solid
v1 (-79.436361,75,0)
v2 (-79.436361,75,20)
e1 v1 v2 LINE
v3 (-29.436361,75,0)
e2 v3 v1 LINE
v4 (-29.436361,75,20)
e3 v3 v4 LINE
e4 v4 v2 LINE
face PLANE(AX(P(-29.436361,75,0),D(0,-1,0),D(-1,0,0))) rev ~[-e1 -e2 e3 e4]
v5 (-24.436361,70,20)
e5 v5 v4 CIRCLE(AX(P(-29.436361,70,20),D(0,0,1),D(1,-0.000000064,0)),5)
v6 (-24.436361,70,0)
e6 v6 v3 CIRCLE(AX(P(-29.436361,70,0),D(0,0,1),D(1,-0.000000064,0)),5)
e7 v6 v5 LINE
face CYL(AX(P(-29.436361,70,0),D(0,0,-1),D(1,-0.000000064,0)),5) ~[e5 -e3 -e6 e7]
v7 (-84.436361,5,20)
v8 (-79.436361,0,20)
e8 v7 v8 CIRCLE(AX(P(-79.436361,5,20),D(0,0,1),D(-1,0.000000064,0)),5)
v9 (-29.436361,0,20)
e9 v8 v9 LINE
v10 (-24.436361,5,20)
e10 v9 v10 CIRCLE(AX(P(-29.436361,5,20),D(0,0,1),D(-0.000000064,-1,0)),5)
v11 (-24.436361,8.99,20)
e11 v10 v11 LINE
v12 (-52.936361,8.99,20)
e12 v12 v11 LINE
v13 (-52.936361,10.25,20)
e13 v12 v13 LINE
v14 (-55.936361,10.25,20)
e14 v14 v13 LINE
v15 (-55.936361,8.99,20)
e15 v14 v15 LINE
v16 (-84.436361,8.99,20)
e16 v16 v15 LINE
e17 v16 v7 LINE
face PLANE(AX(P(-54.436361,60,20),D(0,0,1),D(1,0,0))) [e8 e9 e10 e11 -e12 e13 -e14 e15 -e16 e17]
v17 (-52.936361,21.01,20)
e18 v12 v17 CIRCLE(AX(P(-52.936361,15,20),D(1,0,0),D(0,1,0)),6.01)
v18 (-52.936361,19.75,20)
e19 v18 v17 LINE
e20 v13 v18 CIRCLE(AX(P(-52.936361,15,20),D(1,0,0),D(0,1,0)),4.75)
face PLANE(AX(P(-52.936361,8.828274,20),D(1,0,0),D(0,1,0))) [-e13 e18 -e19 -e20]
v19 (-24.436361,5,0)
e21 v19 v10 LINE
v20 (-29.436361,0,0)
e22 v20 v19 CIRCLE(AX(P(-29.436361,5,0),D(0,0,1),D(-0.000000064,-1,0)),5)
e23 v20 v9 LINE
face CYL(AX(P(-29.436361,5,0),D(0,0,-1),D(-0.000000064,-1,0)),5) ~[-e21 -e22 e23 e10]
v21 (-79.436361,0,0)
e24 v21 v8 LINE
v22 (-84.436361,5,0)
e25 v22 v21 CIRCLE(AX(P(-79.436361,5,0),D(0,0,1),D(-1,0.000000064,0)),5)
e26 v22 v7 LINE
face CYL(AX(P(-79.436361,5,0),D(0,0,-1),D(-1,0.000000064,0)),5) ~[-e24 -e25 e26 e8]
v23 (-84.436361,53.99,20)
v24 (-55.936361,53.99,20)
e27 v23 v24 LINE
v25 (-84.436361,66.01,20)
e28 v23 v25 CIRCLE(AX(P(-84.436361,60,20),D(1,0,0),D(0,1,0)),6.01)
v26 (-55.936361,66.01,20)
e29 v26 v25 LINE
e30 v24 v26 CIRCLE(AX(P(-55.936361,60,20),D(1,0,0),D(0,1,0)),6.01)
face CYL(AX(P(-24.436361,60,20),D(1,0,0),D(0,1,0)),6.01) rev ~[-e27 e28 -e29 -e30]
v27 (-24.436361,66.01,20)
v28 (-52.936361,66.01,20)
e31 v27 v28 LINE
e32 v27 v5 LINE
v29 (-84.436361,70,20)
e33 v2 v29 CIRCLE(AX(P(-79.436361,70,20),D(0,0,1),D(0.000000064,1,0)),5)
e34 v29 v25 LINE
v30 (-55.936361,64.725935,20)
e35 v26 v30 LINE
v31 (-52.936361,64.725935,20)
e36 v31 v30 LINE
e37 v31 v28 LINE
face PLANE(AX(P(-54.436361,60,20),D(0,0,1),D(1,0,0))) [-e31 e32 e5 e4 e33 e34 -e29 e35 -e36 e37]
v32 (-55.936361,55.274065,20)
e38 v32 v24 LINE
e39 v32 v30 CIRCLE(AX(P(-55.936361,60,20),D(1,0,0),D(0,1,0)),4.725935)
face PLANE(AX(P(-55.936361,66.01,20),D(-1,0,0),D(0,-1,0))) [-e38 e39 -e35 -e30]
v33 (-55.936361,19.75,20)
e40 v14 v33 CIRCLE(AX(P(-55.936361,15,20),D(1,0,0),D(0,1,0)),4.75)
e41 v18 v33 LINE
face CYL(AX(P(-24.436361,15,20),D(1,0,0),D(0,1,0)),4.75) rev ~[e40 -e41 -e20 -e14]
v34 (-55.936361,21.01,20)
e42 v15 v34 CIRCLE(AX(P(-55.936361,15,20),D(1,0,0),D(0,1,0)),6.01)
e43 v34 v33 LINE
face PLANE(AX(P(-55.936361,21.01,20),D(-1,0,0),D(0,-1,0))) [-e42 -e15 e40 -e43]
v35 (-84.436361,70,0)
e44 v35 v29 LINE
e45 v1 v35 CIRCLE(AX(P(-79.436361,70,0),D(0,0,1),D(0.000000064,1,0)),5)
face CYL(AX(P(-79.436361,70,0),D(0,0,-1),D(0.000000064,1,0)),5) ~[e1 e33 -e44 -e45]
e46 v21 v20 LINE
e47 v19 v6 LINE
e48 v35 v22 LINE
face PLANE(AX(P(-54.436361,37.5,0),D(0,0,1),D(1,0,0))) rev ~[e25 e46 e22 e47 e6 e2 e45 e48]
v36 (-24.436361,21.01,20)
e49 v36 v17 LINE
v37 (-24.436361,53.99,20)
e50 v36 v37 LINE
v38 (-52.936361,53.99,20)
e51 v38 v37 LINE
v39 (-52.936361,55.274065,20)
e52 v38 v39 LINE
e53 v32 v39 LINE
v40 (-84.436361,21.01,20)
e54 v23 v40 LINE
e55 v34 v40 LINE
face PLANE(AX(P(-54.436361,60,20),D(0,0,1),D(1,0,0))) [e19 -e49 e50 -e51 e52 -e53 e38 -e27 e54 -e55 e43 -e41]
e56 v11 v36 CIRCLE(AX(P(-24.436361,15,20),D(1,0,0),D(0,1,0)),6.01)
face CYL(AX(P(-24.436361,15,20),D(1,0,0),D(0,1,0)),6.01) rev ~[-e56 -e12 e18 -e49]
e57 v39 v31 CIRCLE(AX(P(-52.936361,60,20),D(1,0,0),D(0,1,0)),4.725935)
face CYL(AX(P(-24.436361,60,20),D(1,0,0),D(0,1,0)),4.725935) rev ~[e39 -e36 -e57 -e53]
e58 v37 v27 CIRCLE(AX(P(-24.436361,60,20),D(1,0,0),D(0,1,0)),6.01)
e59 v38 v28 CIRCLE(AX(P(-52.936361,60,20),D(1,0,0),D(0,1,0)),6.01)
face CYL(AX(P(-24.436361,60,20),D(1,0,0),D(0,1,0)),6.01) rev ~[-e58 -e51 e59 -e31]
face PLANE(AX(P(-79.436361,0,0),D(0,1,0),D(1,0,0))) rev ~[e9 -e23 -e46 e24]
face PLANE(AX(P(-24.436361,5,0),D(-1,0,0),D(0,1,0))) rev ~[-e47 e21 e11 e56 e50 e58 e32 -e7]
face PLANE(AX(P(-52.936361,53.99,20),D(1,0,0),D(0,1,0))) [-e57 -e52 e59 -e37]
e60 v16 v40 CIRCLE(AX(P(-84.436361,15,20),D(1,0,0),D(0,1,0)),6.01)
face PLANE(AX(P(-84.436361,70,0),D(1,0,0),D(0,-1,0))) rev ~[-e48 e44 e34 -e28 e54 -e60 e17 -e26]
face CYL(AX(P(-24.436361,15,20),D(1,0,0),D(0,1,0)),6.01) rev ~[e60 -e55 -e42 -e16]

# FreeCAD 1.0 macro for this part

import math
import FreeCAD as App
import Part
import Sketcher

V = App.Vector


def add_polygon(sketch, points):
    """Adds a closed chain of lines whose ends are joined by coincident constraints."""
    first, n = sketch.GeometryCount, len(points)
    for a, b in zip(points, points[1:] + points[:1]):
        sketch.addGeometry(Part.LineSegment(App.Vector(*a, 0), App.Vector(*b, 0)), False)
    for i in range(n):
        sketch.addConstraint(Sketcher.Constraint("Coincident", first + i, 2, first + (i + 1) % n, 1))

doc = App.newDocument("Part")
body = doc.addObject("PartDesign::Body", "Body")

# Sketch on XY plane
sketch1 = body.newObject("Sketcher::SketchObject", "Sketch")
sketch1.AttachmentSupport = (doc.getObject("XY_Plane"), [""])
sketch1.MapMode = "FlatFace"
sketch1.addGeometry(Part.LineSegment(V(-29.4, 75, 0), V(-79.4, 75, 0)), False)
sketch1.addGeometry(Part.ArcOfCircle(Part.Circle(V(-79.4, 70, 0), V(0, 0, 1), 5), math.radians(90), math.radians(180)), False)
sketch1.addGeometry(Part.LineSegment(V(-84.4, 70, 0), V(-84.4, 5, 0)), False)
sketch1.addGeometry(Part.ArcOfCircle(Part.Circle(V(-79.4, 5, 0), V(0, 0, 1), 5), math.radians(180), math.radians(270)), False)
sketch1.addGeometry(Part.LineSegment(V(-79.4, 0, 0), V(-29.4, 0, 0)), False)
sketch1.addGeometry(Part.ArcOfCircle(Part.Circle(V(-29.4, 5, 0), V(0, 0, 1), 5), math.radians(-90), math.radians(0)), False)
sketch1.addGeometry(Part.LineSegment(V(-24.4, 5, 0), V(-24.4, 70, 0)), False)
sketch1.addGeometry(Part.ArcOfCircle(Part.Circle(V(-29.4, 70, 0), V(0, 0, 1), 5), math.radians(0), math.radians(90)), False)
sketch1.addConstraint(Sketcher.Constraint("Tangent", 0, 2, 1, 1))
sketch1.addConstraint(Sketcher.Constraint("Tangent", 1, 2, 2, 1))
sketch1.addConstraint(Sketcher.Constraint("Tangent", 2, 2, 3, 1))
sketch1.addConstraint(Sketcher.Constraint("Tangent", 3, 2, 4, 1))
sketch1.addConstraint(Sketcher.Constraint("Tangent", 4, 2, 5, 1))
sketch1.addConstraint(Sketcher.Constraint("Tangent", 5, 2, 6, 1))
sketch1.addConstraint(Sketcher.Constraint("Tangent", 6, 2, 7, 1))
sketch1.addConstraint(Sketcher.Constraint("Tangent", 7, 2, 0, 1))
sketch1.addConstraint(Sketcher.Constraint("Horizontal", 0))
sketch1.addConstraint(Sketcher.Constraint("Vertical", 2))
sketch1.addConstraint(Sketcher.Constraint("Horizontal", 4))
sketch1.addConstraint(Sketcher.Constraint("Vertical", 6))
sketch1.addConstraint(Sketcher.Constraint("Equal", 1, 3))
sketch1.addConstraint(Sketcher.Constraint("Equal", 3, 5))
sketch1.addConstraint(Sketcher.Constraint("Equal", 5, 7))
sketch1.addConstraint(Sketcher.Constraint("PointOnObject", 3, 2, -1))
sketch1.addConstraint(Sketcher.Constraint("Radius", 1, 5.0))
sketch1.addConstraint(Sketcher.Constraint("DistanceX", 0, 2, 0, 1, 50.0))
sketch1.addConstraint(Sketcher.Constraint("DistanceY", 2, 2, 2, 1, 65.0))
sketch1.addConstraint(Sketcher.Constraint("DistanceX", 1, 3, -1, 1, 79.436361))
pad1 = body.newObject("PartDesign::Pad", "Pad")
pad1.Profile = sketch1
pad1.Length = 20

# Sketch on YZ plane
sketch2 = body.newObject("Sketcher::SketchObject", "Sketch001")
sketch2.AttachmentSupport = (doc.getObject("YZ_Plane"), [""])
sketch2.MapMode = "FlatFace"
sketch2.AttachmentOffset = App.Placement(V(0, 0, -24.436361), App.Rotation())
sketch2.addGeometry(Part.Circle(V(60, 20, 0), V(0, 0, 1), 6), False)
sketch2.addGeometry(Part.Circle(V(15, 20, 0), V(0, 0, 1), 6), False)
sketch2.addConstraint(Sketcher.Constraint("Equal", 0, 1))
sketch2.addConstraint(Sketcher.Constraint("Horizontal", 0, 3, 1, 3))
sketch2.addConstraint(Sketcher.Constraint("Diameter", 0, 12.02))
sketch2.addConstraint(Sketcher.Constraint("DistanceX", -1, 1, 0, 3, 60.0))
sketch2.addConstraint(Sketcher.Constraint("DistanceY", -1, 1, 0, 3, 20.0))
sketch2.addConstraint(Sketcher.Constraint("DistanceX", -1, 1, 1, 3, 15.0))
pocket1 = body.newObject("PartDesign::Pocket", "Pocket")
pocket1.Profile = sketch2
pocket1.Type = "ThroughAll"

# Sketch on XY plane
sketch3 = body.newObject("Sketcher::SketchObject", "Sketch002")
sketch3.AttachmentSupport = (doc.getObject("XY_Plane"), [""])
sketch3.MapMode = "FlatFace"
sketch3.AttachmentOffset = App.Placement(V(0, 0, 20), App.Rotation())
add_polygon(sketch3, [(-55.9, 54), (-52.9, 54), (-52.9, 66), (-55.9, 66)])  # lines 0-3
add_polygon(sketch3, [(-52.9, 21), (-55.9, 21), (-55.9, 8.8), (-52.9, 8.8)])  # lines 4-7
sketch3.addConstraint(Sketcher.Constraint("Horizontal", 0))
sketch3.addConstraint(Sketcher.Constraint("Vertical", 1))
sketch3.addConstraint(Sketcher.Constraint("Horizontal", 2))
sketch3.addConstraint(Sketcher.Constraint("Vertical", 3))
sketch3.addConstraint(Sketcher.Constraint("Horizontal", 4))
sketch3.addConstraint(Sketcher.Constraint("Vertical", 5))
sketch3.addConstraint(Sketcher.Constraint("Horizontal", 6))
sketch3.addConstraint(Sketcher.Constraint("Vertical", 7))
sketch3.addConstraint(Sketcher.Constraint("Vertical", 3, 2, 4, 2))
sketch3.addConstraint(Sketcher.Constraint("Vertical", 1, 2, 6, 2))
sketch3.addConstraint(Sketcher.Constraint("DistanceX", 0, 1, 0, 2, 3.0))
sketch3.addConstraint(Sketcher.Constraint("DistanceY", 4, 2, 2, 2, 45.0))
sketch3.addConstraint(Sketcher.Constraint("DistanceY", 1, 1, 1, 2, 12.02))
sketch3.addConstraint(Sketcher.Constraint("DistanceY", -1, 1, 0, 2, 53.99))
sketch3.addConstraint(Sketcher.Constraint("DistanceY", 5, 2, 5, 1, 12.181726))
sketch3.addConstraint(Sketcher.Constraint("DistanceX", 0, 2, -1, 1, 52.936361))
pad2 = body.newObject("PartDesign::Pad", "Pad001")
pad2.Profile = sketch3
pad2.Length = 7
pad2.Reversed = True

# Sketch on YZ plane
sketch4 = body.newObject("Sketcher::SketchObject", "Sketch003")
sketch4.AttachmentSupport = (doc.getObject("YZ_Plane"), [""])
sketch4.MapMode = "FlatFace"
sketch4.AttachmentOffset = App.Placement(V(0, 0, -24.436361), App.Rotation())
sketch4.addGeometry(Part.Circle(V(60, 20, 0), V(0, 0, 1), 4.7), False)
sketch4.addGeometry(Part.Circle(V(15, 20, 0), V(0, 0, 1), 4.8), False)
sketch4.addConstraint(Sketcher.Constraint("Horizontal", 0, 3, 1, 3))
sketch4.addConstraint(Sketcher.Constraint("Diameter", 1, 9.5))
sketch4.addConstraint(Sketcher.Constraint("DistanceX", -1, 1, 0, 3, 60.0))
sketch4.addConstraint(Sketcher.Constraint("DistanceY", -1, 1, 0, 3, 20.0))
sketch4.addConstraint(Sketcher.Constraint("DistanceX", -1, 1, 1, 3, 15.0))
sketch4.addConstraint(Sketcher.Constraint("Diameter", 0, 9.45187))
pocket2 = body.newObject("PartDesign::Pocket", "Pocket001")
pocket2.Profile = sketch4
pocket2.Type = "ThroughAll"

doc.recompute()
